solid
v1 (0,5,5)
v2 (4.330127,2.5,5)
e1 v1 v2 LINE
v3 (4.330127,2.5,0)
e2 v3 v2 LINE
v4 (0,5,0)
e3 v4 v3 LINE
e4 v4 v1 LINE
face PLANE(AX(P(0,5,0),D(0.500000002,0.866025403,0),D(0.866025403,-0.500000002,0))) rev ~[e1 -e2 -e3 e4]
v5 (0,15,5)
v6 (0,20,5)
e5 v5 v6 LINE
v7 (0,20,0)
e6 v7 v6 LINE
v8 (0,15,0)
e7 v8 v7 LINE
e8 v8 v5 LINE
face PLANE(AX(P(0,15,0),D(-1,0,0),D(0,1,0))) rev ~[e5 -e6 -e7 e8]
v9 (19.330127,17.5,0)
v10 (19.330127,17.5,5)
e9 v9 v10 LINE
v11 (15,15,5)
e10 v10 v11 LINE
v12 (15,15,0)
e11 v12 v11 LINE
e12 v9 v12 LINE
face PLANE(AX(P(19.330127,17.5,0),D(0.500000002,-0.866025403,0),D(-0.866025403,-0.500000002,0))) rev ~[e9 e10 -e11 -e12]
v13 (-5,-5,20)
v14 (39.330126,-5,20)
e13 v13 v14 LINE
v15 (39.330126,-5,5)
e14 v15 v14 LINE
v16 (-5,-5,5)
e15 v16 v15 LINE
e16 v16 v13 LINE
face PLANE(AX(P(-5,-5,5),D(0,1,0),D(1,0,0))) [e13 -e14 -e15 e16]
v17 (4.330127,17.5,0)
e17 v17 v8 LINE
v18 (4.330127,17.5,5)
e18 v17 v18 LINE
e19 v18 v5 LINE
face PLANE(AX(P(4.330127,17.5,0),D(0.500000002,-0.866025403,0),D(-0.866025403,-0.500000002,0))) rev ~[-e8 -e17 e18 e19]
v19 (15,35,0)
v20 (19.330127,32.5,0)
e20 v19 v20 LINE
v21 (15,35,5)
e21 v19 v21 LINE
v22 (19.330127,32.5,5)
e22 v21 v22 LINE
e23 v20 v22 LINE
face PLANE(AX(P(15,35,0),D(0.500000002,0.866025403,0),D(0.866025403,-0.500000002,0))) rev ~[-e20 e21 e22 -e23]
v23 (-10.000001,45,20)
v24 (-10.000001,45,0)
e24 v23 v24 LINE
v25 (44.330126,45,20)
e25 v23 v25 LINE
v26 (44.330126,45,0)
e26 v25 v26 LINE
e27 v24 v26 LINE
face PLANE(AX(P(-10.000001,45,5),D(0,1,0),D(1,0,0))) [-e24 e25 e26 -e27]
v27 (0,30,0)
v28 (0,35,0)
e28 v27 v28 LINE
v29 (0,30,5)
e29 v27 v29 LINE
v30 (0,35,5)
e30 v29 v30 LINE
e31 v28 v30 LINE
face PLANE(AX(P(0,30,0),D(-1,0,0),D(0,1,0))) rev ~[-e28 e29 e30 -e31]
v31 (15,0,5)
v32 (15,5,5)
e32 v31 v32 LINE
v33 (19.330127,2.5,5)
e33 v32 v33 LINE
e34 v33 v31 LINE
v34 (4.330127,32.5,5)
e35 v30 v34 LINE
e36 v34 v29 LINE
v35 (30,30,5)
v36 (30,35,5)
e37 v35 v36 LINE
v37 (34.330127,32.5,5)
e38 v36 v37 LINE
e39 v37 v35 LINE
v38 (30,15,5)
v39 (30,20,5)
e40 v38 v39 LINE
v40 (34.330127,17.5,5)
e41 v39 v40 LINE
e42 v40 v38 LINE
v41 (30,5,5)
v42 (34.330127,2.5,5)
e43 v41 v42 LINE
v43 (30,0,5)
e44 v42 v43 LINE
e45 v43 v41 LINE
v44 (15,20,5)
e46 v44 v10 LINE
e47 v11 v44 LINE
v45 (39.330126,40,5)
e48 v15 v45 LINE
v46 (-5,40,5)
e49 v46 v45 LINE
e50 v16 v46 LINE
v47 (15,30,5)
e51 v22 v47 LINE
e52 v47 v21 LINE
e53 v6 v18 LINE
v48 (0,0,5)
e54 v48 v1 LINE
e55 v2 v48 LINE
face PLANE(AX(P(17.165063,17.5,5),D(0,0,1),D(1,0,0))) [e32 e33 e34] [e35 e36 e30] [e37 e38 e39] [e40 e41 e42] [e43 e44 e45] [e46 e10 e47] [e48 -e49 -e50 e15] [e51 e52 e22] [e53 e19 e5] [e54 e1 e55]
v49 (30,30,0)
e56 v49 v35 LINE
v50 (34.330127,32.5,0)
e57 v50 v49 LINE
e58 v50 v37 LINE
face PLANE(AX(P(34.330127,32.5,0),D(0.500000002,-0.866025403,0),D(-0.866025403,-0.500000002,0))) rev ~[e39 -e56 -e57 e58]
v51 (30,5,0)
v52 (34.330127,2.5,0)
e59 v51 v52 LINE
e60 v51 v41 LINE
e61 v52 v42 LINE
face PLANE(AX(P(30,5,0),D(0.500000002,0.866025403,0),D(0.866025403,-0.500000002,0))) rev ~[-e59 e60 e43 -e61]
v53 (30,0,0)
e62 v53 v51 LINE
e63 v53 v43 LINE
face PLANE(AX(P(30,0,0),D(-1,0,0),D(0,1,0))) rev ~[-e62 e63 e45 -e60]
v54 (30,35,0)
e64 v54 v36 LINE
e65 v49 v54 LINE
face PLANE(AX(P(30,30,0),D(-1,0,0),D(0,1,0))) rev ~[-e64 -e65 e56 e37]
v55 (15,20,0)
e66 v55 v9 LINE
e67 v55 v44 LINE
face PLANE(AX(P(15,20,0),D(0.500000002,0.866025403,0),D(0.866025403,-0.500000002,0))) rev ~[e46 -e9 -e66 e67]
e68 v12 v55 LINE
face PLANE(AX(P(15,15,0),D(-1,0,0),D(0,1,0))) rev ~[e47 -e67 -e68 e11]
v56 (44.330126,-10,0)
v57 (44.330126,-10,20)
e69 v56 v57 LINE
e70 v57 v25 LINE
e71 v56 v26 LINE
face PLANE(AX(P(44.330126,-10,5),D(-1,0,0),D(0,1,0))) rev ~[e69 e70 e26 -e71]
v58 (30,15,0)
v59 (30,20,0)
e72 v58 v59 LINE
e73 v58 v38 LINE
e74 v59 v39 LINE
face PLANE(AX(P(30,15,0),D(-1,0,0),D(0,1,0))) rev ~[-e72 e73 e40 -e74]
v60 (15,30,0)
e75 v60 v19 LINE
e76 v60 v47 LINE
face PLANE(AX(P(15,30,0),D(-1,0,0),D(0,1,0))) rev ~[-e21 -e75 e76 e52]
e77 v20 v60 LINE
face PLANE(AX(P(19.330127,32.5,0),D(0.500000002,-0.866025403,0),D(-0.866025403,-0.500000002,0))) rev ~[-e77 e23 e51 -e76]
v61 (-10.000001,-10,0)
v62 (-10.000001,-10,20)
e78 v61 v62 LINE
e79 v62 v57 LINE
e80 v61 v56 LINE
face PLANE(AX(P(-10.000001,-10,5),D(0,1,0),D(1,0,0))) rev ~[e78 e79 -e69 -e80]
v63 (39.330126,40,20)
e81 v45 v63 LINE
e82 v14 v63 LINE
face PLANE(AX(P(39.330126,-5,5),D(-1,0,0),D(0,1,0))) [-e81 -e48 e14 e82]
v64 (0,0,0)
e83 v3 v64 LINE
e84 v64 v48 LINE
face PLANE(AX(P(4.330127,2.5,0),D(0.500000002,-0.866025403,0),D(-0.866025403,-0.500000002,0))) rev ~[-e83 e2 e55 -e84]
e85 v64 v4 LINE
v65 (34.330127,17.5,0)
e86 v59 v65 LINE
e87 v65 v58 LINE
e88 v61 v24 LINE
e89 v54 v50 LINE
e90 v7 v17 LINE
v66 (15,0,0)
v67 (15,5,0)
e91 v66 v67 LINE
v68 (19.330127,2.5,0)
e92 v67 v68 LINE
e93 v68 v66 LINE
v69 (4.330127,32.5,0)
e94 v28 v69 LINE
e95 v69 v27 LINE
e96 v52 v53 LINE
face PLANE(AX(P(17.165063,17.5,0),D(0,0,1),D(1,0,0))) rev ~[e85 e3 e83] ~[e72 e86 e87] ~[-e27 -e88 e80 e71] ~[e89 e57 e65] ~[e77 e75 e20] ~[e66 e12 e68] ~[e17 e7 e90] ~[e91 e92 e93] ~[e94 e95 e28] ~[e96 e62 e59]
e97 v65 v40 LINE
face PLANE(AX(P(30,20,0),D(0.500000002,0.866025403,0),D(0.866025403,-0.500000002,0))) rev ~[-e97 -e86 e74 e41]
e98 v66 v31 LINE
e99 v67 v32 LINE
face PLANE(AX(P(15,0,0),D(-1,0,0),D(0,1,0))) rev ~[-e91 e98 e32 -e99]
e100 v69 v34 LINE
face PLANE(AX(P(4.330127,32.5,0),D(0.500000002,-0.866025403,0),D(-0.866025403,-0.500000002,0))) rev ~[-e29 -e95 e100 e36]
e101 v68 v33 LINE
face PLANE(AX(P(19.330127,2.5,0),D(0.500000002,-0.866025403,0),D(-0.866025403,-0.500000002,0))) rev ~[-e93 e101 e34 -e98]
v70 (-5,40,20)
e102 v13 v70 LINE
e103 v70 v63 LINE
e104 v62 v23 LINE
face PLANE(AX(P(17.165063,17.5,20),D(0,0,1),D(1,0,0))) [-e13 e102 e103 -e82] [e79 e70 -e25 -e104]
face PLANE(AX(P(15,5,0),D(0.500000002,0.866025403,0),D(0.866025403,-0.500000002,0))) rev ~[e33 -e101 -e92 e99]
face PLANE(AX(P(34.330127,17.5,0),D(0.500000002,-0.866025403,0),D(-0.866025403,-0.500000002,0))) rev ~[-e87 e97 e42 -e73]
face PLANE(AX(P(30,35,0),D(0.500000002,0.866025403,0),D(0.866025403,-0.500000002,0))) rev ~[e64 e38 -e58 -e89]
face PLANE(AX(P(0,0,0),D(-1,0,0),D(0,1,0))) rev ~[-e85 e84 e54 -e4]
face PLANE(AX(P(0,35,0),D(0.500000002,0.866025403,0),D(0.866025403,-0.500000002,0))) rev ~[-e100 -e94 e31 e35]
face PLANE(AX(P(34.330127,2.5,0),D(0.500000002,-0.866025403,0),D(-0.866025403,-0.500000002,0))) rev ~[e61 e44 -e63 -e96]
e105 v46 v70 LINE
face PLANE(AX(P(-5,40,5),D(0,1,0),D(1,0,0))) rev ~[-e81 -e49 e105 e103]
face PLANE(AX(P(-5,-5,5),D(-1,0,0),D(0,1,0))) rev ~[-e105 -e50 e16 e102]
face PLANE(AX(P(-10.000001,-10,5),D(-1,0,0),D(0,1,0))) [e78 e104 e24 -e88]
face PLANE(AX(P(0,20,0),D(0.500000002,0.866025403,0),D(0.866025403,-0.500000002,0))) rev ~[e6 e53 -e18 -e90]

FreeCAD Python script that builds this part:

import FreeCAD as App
import Part
import Sketcher
Q = App.Units.Quantity

doc = App.newDocument("Part")
params = doc.addObject("Spreadsheet::Sheet", "Params")
for row, (alias, value) in enumerate([
    ("sketch1_height", "55 mm"),
    ("sketch1_height2", "5 mm"),
    ("pad1_length", "5 mm"),
    ("sketch2_height", "55 mm"),
    ("sketch2_height2", "45 mm"),
    ("pad2_length", "15 mm"),
], start=1):
    params.set(f"A{row}", alias)
    params.set(f"B{row}", "=" + value)
    params.setAlias(f"B{row}", alias)

body = doc.addObject("PartDesign::Body", "Body")

sketch1 = body.newObject("Sketcher::SketchObject", "Sketch")
sketch1.AttachmentSupport = (doc.getObject("XY_Plane"), [""])
sketch1.MapMode = "FlatFace"
sketch1.addGeometry([
    Part.LineSegment(App.Vector(-10.000001, 45, 0), App.Vector(-10.000001, -10, 0)),
    Part.LineSegment(App.Vector(-10.000001, -10, 0), App.Vector(44.330126, -10, 0)),
    Part.LineSegment(App.Vector(44.330126, -10, 0), App.Vector(44.330126, 45, 0)),
    Part.LineSegment(App.Vector(44.330126, 45, 0), App.Vector(-10.000001, 45, 0)),
    Part.LineSegment(App.Vector(4.330127, 2.5, 0), App.Vector(0, 0, 0)),
    Part.LineSegment(App.Vector(0, 0, 0), App.Vector(0, 5, 0)),
    Part.LineSegment(App.Vector(0, 5, 0), App.Vector(4.330127, 2.5, 0)),
    Part.LineSegment(App.Vector(15, 0, 0), App.Vector(15, 5, 0)),
    Part.LineSegment(App.Vector(15, 5, 0), App.Vector(19.330127, 2.5, 0)),
    Part.LineSegment(App.Vector(19.330127, 2.5, 0), App.Vector(15, 0, 0)),
    Part.LineSegment(App.Vector(30, 0, 0), App.Vector(30, 5, 0)),
    Part.LineSegment(App.Vector(30, 5, 0), App.Vector(34.330127, 2.5, 0)),
    Part.LineSegment(App.Vector(34.330127, 2.5, 0), App.Vector(30, 0, 0)),
    Part.LineSegment(App.Vector(0, 15, 0), App.Vector(0, 20, 0)),
    Part.LineSegment(App.Vector(0, 20, 0), App.Vector(4.330127, 17.5, 0)),
    Part.LineSegment(App.Vector(4.330127, 17.5, 0), App.Vector(0, 15, 0)),
    Part.LineSegment(App.Vector(0, 30, 0), App.Vector(0, 35, 0)),
    Part.LineSegment(App.Vector(0, 35, 0), App.Vector(4.330127, 32.5, 0)),
    Part.LineSegment(App.Vector(4.330127, 32.5, 0), App.Vector(0, 30, 0)),
    Part.LineSegment(App.Vector(15, 15, 0), App.Vector(15, 20, 0)),
    Part.LineSegment(App.Vector(15, 20, 0), App.Vector(19.330127, 17.5, 0)),
    Part.LineSegment(App.Vector(19.330127, 17.5, 0), App.Vector(15, 15, 0)),
    Part.LineSegment(App.Vector(30, 15, 0), App.Vector(30, 20, 0)),
    Part.LineSegment(App.Vector(30, 20, 0), App.Vector(34.330127, 17.5, 0)),
    Part.LineSegment(App.Vector(34.330127, 17.5, 0), App.Vector(30, 15, 0)),
    Part.LineSegment(App.Vector(15, 30, 0), App.Vector(15, 35, 0)),
    Part.LineSegment(App.Vector(15, 35, 0), App.Vector(19.330127, 32.5, 0)),
    Part.LineSegment(App.Vector(19.330127, 32.5, 0), App.Vector(15, 30, 0)),
    Part.LineSegment(App.Vector(30, 30, 0), App.Vector(30, 35, 0)),
    Part.LineSegment(App.Vector(30, 35, 0), App.Vector(34.330127, 32.5, 0)),
    Part.LineSegment(App.Vector(34.330127, 32.5, 0), App.Vector(30, 30, 0)),
], False)
sketch1.addConstraint([
    Sketcher.Constraint("Coincident", 0, 2, 1, 1),
    Sketcher.Constraint("Coincident", 1, 2, 2, 1),
    Sketcher.Constraint("Coincident", 2, 2, 3, 1),
    Sketcher.Constraint("Coincident", 3, 2, 0, 1),
    Sketcher.Constraint("Coincident", 4, 2, 5, 1),
    Sketcher.Constraint("Coincident", 5, 2, 6, 1),
    Sketcher.Constraint("Coincident", 6, 2, 4, 1),
    Sketcher.Constraint("Coincident", 7, 2, 8, 1),
    Sketcher.Constraint("Coincident", 8, 2, 9, 1),
    Sketcher.Constraint("Coincident", 9, 2, 7, 1),
    Sketcher.Constraint("Coincident", 10, 2, 11, 1),
    Sketcher.Constraint("Coincident", 11, 2, 12, 1),
    Sketcher.Constraint("Coincident", 12, 2, 10, 1),
    Sketcher.Constraint("Coincident", 13, 2, 14, 1),
    Sketcher.Constraint("Coincident", 14, 2, 15, 1),
    Sketcher.Constraint("Coincident", 15, 2, 13, 1),
    Sketcher.Constraint("Coincident", 16, 2, 17, 1),
    Sketcher.Constraint("Coincident", 17, 2, 18, 1),
    Sketcher.Constraint("Coincident", 18, 2, 16, 1),
    Sketcher.Constraint("Coincident", 19, 2, 20, 1),
    Sketcher.Constraint("Coincident", 20, 2, 21, 1),
    Sketcher.Constraint("Coincident", 21, 2, 19, 1),
    Sketcher.Constraint("Coincident", 22, 2, 23, 1),
    Sketcher.Constraint("Coincident", 23, 2, 24, 1),
    Sketcher.Constraint("Coincident", 24, 2, 22, 1),
    Sketcher.Constraint("Coincident", 25, 2, 26, 1),
    Sketcher.Constraint("Coincident", 26, 2, 27, 1),
    Sketcher.Constraint("Coincident", 27, 2, 25, 1),
    Sketcher.Constraint("Coincident", 28, 2, 29, 1),
    Sketcher.Constraint("Coincident", 29, 2, 30, 1),
    Sketcher.Constraint("Coincident", 30, 2, 28, 1),
    Sketcher.Constraint("Vertical", 0),
    Sketcher.Constraint("Horizontal", 1),
    Sketcher.Constraint("Vertical", 2),
    Sketcher.Constraint("Horizontal", 3),
    Sketcher.Constraint("Vertical", 5),
    Sketcher.Constraint("Vertical", 7),
    Sketcher.Constraint("Vertical", 10),
    Sketcher.Constraint("Vertical", 13),
    Sketcher.Constraint("Vertical", 16),
    Sketcher.Constraint("Vertical", 19),
    Sketcher.Constraint("Vertical", 22),
    Sketcher.Constraint("Vertical", 25),
    Sketcher.Constraint("Vertical", 28),
    Sketcher.Constraint("Coincident", 4, 2, -1, 1),
    Sketcher.Constraint("PointOnObject", 9, 2, -1),
    Sketcher.Constraint("PointOnObject", 12, 2, -1),
    Sketcher.Constraint("PointOnObject", 13, 2, -2),
    Sketcher.Constraint("PointOnObject", 16, 2, -2),
    Sketcher.Constraint("Parallel", 6, 8),
    Sketcher.Constraint("Parallel", 4, 9),
    Sketcher.Constraint("Parallel", 8, 11),
    Sketcher.Constraint("Parallel", 9, 12),
    Sketcher.Constraint("Parallel", 11, 14),
    Sketcher.Constraint("Parallel", 12, 15),
    Sketcher.Constraint("Parallel", 14, 17),
    Sketcher.Constraint("Parallel", 15, 18),
    Sketcher.Constraint("Parallel", 17, 20),
    Sketcher.Constraint("Parallel", 18, 21),
    Sketcher.Constraint("Parallel", 20, 23),
    Sketcher.Constraint("Parallel", 21, 24),
    Sketcher.Constraint("Parallel", 23, 26),
    Sketcher.Constraint("Parallel", 24, 27),
    Sketcher.Constraint("Parallel", 26, 29),
    Sketcher.Constraint("Parallel", 27, 30),
    Sketcher.Constraint("Horizontal", 5, 2, 7, 2),
    Sketcher.Constraint("Horizontal", 7, 2, 10, 2),
    Sketcher.Constraint("Horizontal", 13, 2, 19, 2),
    Sketcher.Constraint("Horizontal", 14, 2, 20, 2),
    Sketcher.Constraint("Horizontal", 19, 2, 22, 2),
    Sketcher.Constraint("Horizontal", 20, 2, 23, 2),
    Sketcher.Constraint("Horizontal", 16, 2, 25, 2),
    Sketcher.Constraint("Horizontal", 17, 2, 26, 2),
    Sketcher.Constraint("Horizontal", 25, 2, 28, 2),
    Sketcher.Constraint("Horizontal", 26, 2, 29, 2),
    Sketcher.Constraint("Vertical", 6, 2, 14, 2),
    Sketcher.Constraint("Vertical", 14, 2, 17, 2),
    Sketcher.Constraint("Vertical", 9, 2, 19, 2),
    Sketcher.Constraint("Vertical", 12, 2, 22, 2),
    Sketcher.Constraint("Vertical", 21, 2, 25, 2),
    Sketcher.Constraint("Vertical", 24, 2, 28, 2),
    Sketcher.Constraint("Equal", 4, 6),
    Sketcher.Constraint("DistanceY", 0, 2, 0, 1, 55.0),
    Sketcher.Constraint("DistanceY", 5, 1, 5, 2, 5.0),
    Sketcher.Constraint("Angle", 4, Q("-150 deg")),
    Sketcher.Constraint("DistanceX", 0, 2, -1, 1, 10.000001),
    Sketcher.Constraint("DistanceY", 0, 2, -1, 1, 10.0),
    Sketcher.Constraint("DistanceX", -1, 1, 7, 2, 15.0),
    Sketcher.Constraint("DistanceX", -1, 1, 10, 2, 30.0),
    Sketcher.Constraint("DistanceY", -1, 1, 13, 2, 20.0),
    Sketcher.Constraint("DistanceY", -1, 1, 16, 2, 35.0),
    Sketcher.Constraint("DistanceX", 6, 2, 1, 2, 40.0),
])
sketch1.setExpression("Constraints[82]", "Params.sketch1_height")
sketch1.setExpression("Constraints[83]", "Params.sketch1_height2")
pad1 = body.newObject("PartDesign::Pad", "Pad")
pad1.Profile = sketch1
pad1.setExpression("Length", "Params.pad1_length")

sketch2 = body.newObject("Sketcher::SketchObject", "Sketch001")
sketch2.AttachmentSupport = (doc.getObject("XY_Plane"), [""])
sketch2.MapMode = "FlatFace"
sketch2.AttachmentOffset = App.Placement(App.Vector(0, 0, 5), App.Rotation())
sketch2.addGeometry([
    Part.LineSegment(App.Vector(-10.000001, 45, 0), App.Vector(-10.000001, -10, 0)),
    Part.LineSegment(App.Vector(-10.000001, -10, 0), App.Vector(44.330126, -10, 0)),
    Part.LineSegment(App.Vector(44.330126, -10, 0), App.Vector(44.330126, 45, 0)),
    Part.LineSegment(App.Vector(44.330126, 45, 0), App.Vector(-10.000001, 45, 0)),
    Part.LineSegment(App.Vector(39.330126, -5, 0), App.Vector(-5, -5, 0)),
    Part.LineSegment(App.Vector(-5, -5, 0), App.Vector(-5, 40, 0)),
    Part.LineSegment(App.Vector(-5, 40, 0), App.Vector(39.330126, 40, 0)),
    Part.LineSegment(App.Vector(39.330126, 40, 0), App.Vector(39.330126, -5, 0)),
], False)
sketch2.addConstraint([
    Sketcher.Constraint("Coincident", 0, 2, 1, 1),
    Sketcher.Constraint("Coincident", 1, 2, 2, 1),
    Sketcher.Constraint("Coincident", 2, 2, 3, 1),
    Sketcher.Constraint("Coincident", 3, 2, 0, 1),
    Sketcher.Constraint("Coincident", 4, 2, 5, 1),
    Sketcher.Constraint("Coincident", 5, 2, 6, 1),
    Sketcher.Constraint("Coincident", 6, 2, 7, 1),
    Sketcher.Constraint("Coincident", 7, 2, 4, 1),
    Sketcher.Constraint("Vertical", 0),
    Sketcher.Constraint("Horizontal", 1),
    Sketcher.Constraint("Vertical", 2),
    Sketcher.Constraint("Horizontal", 3),
    Sketcher.Constraint("Horizontal", 4),
    Sketcher.Constraint("Vertical", 5),
    Sketcher.Constraint("Horizontal", 6),
    Sketcher.Constraint("Vertical", 7),
    Sketcher.Constraint("DistanceY", 0, 2, 0, 1, 55.0),
    Sketcher.Constraint("DistanceY", 5, 1, 5, 2, 45.0),
    Sketcher.Constraint("DistanceX", 0, 2, -1, 1, 10.000001),
    Sketcher.Constraint("DistanceY", 0, 2, -1, 1, 10.0),
    Sketcher.Constraint("DistanceX", 4, 2, -1, 1, 5.0),
    Sketcher.Constraint("DistanceY", 4, 2, -1, 1, 5.0),
    Sketcher.Constraint("DistanceX", 6, 2, 2, 2, 5.0),
    Sketcher.Constraint("DistanceX", 1, 1, 1, 2, 54.330127),
])
sketch2.setExpression("Constraints[16]", "Params.sketch2_height")
sketch2.setExpression("Constraints[17]", "Params.sketch2_height2")
pad2 = body.newObject("PartDesign::Pad", "Pad001")
pad2.Profile = sketch2
pad2.setExpression("Length", "Params.pad2_length")

doc.recompute()
